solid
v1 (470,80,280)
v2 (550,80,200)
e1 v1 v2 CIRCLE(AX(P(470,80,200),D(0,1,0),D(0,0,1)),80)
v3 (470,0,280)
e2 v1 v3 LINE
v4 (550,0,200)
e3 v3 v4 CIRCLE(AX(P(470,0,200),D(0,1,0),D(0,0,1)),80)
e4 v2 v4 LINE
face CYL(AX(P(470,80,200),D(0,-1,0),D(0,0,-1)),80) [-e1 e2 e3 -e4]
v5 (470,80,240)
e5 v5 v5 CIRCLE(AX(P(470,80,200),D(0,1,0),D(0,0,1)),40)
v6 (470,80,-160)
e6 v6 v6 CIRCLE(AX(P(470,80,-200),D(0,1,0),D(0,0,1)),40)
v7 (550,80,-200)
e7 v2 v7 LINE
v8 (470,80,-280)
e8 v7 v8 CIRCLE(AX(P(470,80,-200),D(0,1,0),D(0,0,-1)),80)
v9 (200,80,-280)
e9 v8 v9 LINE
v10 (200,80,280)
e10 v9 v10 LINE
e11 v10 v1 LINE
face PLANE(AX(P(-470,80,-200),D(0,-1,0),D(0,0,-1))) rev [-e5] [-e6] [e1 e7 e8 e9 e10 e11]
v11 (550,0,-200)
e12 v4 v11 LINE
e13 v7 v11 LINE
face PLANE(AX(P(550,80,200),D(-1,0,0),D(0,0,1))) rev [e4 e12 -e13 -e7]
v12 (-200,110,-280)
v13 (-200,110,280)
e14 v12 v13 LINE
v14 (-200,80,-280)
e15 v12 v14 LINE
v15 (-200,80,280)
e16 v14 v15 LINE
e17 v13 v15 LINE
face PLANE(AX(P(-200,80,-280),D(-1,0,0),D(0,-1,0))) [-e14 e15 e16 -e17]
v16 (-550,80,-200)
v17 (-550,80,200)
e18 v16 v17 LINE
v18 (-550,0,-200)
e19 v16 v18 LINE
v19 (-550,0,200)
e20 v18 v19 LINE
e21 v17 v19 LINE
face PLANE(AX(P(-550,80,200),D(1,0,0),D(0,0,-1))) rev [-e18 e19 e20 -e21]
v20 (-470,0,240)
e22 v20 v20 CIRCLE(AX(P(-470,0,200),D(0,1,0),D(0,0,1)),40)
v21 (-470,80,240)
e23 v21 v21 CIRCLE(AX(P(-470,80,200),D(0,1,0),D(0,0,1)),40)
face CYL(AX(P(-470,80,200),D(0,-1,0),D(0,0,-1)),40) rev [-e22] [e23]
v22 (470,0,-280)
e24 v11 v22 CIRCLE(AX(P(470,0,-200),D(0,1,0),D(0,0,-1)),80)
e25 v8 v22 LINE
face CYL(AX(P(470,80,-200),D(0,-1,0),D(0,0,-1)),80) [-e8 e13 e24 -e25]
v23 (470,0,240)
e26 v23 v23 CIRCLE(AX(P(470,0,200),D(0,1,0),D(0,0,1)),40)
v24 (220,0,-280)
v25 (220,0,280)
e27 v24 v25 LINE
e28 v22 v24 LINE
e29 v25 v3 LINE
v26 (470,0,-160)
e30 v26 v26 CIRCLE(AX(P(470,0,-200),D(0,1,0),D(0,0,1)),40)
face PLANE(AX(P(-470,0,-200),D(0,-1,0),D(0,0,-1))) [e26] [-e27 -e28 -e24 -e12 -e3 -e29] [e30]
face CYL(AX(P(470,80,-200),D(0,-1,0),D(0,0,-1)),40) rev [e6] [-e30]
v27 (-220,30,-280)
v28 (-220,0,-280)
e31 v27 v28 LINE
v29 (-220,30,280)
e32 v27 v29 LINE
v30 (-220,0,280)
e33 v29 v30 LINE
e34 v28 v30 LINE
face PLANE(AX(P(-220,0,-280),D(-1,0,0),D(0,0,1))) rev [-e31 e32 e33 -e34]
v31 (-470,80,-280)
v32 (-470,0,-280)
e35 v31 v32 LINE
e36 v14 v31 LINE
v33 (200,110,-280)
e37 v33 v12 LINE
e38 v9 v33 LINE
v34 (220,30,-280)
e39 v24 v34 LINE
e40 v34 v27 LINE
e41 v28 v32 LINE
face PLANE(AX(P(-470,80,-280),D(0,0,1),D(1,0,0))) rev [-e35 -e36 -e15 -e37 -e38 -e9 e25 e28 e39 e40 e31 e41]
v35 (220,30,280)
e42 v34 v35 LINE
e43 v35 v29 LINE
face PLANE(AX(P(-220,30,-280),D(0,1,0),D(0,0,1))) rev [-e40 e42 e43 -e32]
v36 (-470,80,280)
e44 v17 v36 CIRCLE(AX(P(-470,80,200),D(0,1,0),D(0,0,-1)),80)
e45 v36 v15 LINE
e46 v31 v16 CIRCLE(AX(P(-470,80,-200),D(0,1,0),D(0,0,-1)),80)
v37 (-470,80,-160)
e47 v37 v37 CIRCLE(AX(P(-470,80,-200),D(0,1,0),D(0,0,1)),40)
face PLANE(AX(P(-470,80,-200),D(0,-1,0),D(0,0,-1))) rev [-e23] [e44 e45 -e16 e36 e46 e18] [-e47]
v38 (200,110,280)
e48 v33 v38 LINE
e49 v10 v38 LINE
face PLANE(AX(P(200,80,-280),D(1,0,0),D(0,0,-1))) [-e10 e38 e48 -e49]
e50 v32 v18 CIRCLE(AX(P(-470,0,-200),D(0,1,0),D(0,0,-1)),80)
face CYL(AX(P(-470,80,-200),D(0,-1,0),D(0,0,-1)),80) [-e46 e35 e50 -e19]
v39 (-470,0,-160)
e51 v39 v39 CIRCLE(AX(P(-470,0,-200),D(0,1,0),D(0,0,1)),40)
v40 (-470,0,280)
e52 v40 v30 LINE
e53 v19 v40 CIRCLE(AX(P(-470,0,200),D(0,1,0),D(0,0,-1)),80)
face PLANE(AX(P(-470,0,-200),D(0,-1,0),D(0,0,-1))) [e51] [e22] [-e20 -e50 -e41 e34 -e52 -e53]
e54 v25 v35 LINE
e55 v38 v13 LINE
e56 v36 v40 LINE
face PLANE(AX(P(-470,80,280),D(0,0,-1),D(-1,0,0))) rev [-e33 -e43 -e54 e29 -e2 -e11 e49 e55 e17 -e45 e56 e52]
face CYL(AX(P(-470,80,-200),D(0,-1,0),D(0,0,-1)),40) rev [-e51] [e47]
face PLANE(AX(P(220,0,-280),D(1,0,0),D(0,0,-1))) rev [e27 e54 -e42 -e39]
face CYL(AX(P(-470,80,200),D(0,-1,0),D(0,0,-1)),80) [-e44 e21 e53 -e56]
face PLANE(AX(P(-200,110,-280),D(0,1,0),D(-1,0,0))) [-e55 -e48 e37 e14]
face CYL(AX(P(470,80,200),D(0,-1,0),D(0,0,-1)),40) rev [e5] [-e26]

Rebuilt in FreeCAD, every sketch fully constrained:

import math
import FreeCAD as App
import Part
import Sketcher

V = App.Vector
Q = App.Units.Quantity

doc = App.newDocument("Part")
params = doc.addObject("Spreadsheet::Sheet", "Params")
for row, (alias, value) in enumerate([
    ("sketch1_diameter", "80 mm"),
    ("sketch1_radius", "80 mm"),
    ("sketch1_width", "940 mm"),
    ("sketch1_height", "400 mm"),
    ("pad1_length", "80 mm"),
    ("sketch2_width", "440 mm"),
    ("sketch2_height", "30 mm"),
    ("sketch3_width", "400 mm"),
    ("sketch3_height", "30 mm"),
    ("pad2_length", "560 mm"),
], start=1):
    params.set(f"A{row}", alias)
    params.set(f"B{row}", "=" + value)
    params.setAlias(f"B{row}", alias)

body = doc.addObject("PartDesign::Body", "Body")

# Sketch on XZ plane
sketch1 = body.newObject("Sketcher::SketchObject", "Sketch")
sketch1.AttachmentSupport = (doc.getObject("XZ_Plane"), [""])
sketch1.MapMode = "FlatFace"
sketch1.addGeometry([
    Part.LineSegment(V(-470, 280, 0), V(470, 280, 0)),  # 0
    Part.ArcOfCircle(Part.Circle(V(470, 200, 0), V(0, 0, 1), 80), math.radians(0), math.radians(90)),  # 1
    Part.LineSegment(V(550, 200, 0), V(550, -200, 0)),  # 2
    Part.ArcOfCircle(Part.Circle(V(470, -200, 0), V(0, 0, 1), 80), math.radians(-90), math.radians(0)),  # 3
    Part.LineSegment(V(470, -280, 0), V(-470, -280, 0)),  # 4
    Part.ArcOfCircle(Part.Circle(V(-470, -200, 0), V(0, 0, 1), 80), math.radians(180), math.radians(270)),  # 5
    Part.LineSegment(V(-550, -200, 0), V(-550, 200, 0)),  # 6
    Part.ArcOfCircle(Part.Circle(V(-470, 200, 0), V(0, 0, 1), 80), math.radians(90), math.radians(180)),  # 7
    Part.Circle(V(-470, 200, 0), V(0, 0, 1), 40),  # 8
    Part.Circle(V(470, 200, 0), V(0, 0, 1), 40),  # 9
    Part.Circle(V(-470, -200, 0), V(0, 0, 1), 40),  # 10
    Part.Circle(V(470, -200, 0), V(0, 0, 1), 40),  # 11
], False)
sketch1.addConstraint([
    Sketcher.Constraint("Tangent", 0, 2, 1, 2),
    Sketcher.Constraint("Tangent", 1, 1, 2, 1),
    Sketcher.Constraint("Tangent", 2, 2, 3, 2),
    Sketcher.Constraint("Tangent", 3, 1, 4, 1),
    Sketcher.Constraint("Tangent", 4, 2, 5, 2),
    Sketcher.Constraint("Tangent", 5, 1, 6, 1),
    Sketcher.Constraint("Tangent", 6, 2, 7, 2),
    Sketcher.Constraint("Tangent", 7, 1, 0, 1),
    Sketcher.Constraint("Horizontal", 0),
    Sketcher.Constraint("Vertical", 2),
    Sketcher.Constraint("Horizontal", 4),
    Sketcher.Constraint("Vertical", 6),
    Sketcher.Constraint("Coincident", 8, 3, 7, 3),
    Sketcher.Constraint("Coincident", 9, 3, 1, 3),
    Sketcher.Constraint("Coincident", 10, 3, 5, 3),
    Sketcher.Constraint("Coincident", 11, 3, 3, 3),
    Sketcher.Constraint("Equal", 1, 3),
    Sketcher.Constraint("Equal", 3, 5),
    Sketcher.Constraint("Equal", 5, 7),
    Sketcher.Constraint("Equal", 8, 9),
    Sketcher.Constraint("Equal", 9, 10),
    Sketcher.Constraint("Equal", 10, 11),
    Sketcher.Constraint("Symmetric", 1, 3, 5, 3, -1, 1),
    Sketcher.Constraint("Diameter", 8, Q("80 mm")),
    Sketcher.Constraint("Radius", 1, Q("80 mm")),
    Sketcher.Constraint("DistanceX", 0, 1, 0, 2, Q("940 mm")),
    Sketcher.Constraint("DistanceY", 2, 2, 2, 1, Q("400 mm")),
])
sketch1.setExpression("Constraints[23]", "Params.sketch1_diameter")
sketch1.setExpression("Constraints[24]", "Params.sketch1_radius")
sketch1.setExpression("Constraints[25]", "Params.sketch1_width")
sketch1.setExpression("Constraints[26]", "Params.sketch1_height")
pad1 = body.newObject("PartDesign::Pad", "Pad")
pad1.Profile = sketch1
pad1.setExpression("Length", "Params.pad1_length")
pad1.Reversed = True

# Sketch on XY plane
sketch2 = body.newObject("Sketcher::SketchObject", "Sketch001")
sketch2.AttachmentSupport = (doc.getObject("XY_Plane"), [""])
sketch2.MapMode = "FlatFace"
sketch2.AttachmentOffset = App.Placement(V(0, 0, 280), App.Rotation())
sketch2.addGeometry([
    Part.LineSegment(V(-220, 30, 0), V(-220, 0, 0)),
    Part.LineSegment(V(-220, 0, 0), V(220, 0, 0)),
    Part.LineSegment(V(220, 0, 0), V(220, 30, 0)),
    Part.LineSegment(V(220, 30, 0), V(-220, 30, 0)),
], False)
sketch2.addConstraint([
    Sketcher.Constraint("Coincident", 0, 2, 1, 1),
    Sketcher.Constraint("Coincident", 1, 2, 2, 1),
    Sketcher.Constraint("Coincident", 2, 2, 3, 1),
    Sketcher.Constraint("Coincident", 3, 2, 0, 1),
    Sketcher.Constraint("Vertical", 0),
    Sketcher.Constraint("Horizontal", 1),
    Sketcher.Constraint("Vertical", 2),
    Sketcher.Constraint("Horizontal", 3),
    Sketcher.Constraint("Symmetric", 0, 2, 1, 2, -1, 1),
    Sketcher.Constraint("DistanceX", 1, 1, 1, 2, Q("440 mm")),
    Sketcher.Constraint("DistanceY", 0, 2, 0, 1, Q("30 mm")),
])
sketch2.setExpression("Constraints[9]", "Params.sketch2_width")
sketch2.setExpression("Constraints[10]", "Params.sketch2_height")
pocket1 = body.newObject("PartDesign::Pocket", "Pocket")
pocket1.Profile = sketch2
pocket1.Type = "ThroughAll"

# Sketch on XY plane
sketch3 = body.newObject("Sketcher::SketchObject", "Sketch002")
sketch3.AttachmentSupport = (doc.getObject("XY_Plane"), [""])
sketch3.MapMode = "FlatFace"
sketch3.AttachmentOffset = App.Placement(V(0, 0, 280), App.Rotation())
sketch3.addGeometry([
    Part.LineSegment(V(-200, 110, 0), V(-200, 80, 0)),
    Part.LineSegment(V(-200, 80, 0), V(200, 80, 0)),
    Part.LineSegment(V(200, 80, 0), V(200, 110, 0)),
    Part.LineSegment(V(200, 110, 0), V(-200, 110, 0)),
], False)
sketch3.addConstraint([
    Sketcher.Constraint("Coincident", 0, 2, 1, 1),
    Sketcher.Constraint("Coincident", 1, 2, 2, 1),
    Sketcher.Constraint("Coincident", 2, 2, 3, 1),
    Sketcher.Constraint("Coincident", 3, 2, 0, 1),
    Sketcher.Constraint("Vertical", 0),
    Sketcher.Constraint("Horizontal", 1),
    Sketcher.Constraint("Vertical", 2),
    Sketcher.Constraint("Horizontal", 3),
    Sketcher.Constraint("DistanceX", 1, 1, 1, 2, Q("400 mm")),
    Sketcher.Constraint("DistanceY", 0, 2, 0, 1, Q("30 mm")),
    Sketcher.Constraint("DistanceX", 0, 2, -1, 1, Q("200 mm")),
    Sketcher.Constraint("DistanceY", -1, 1, 0, 2, Q("80 mm")),
])
sketch3.setExpression("Constraints[8]", "Params.sketch3_width")
sketch3.setExpression("Constraints[9]", "Params.sketch3_height")
pad2 = body.newObject("PartDesign::Pad", "Pad001")
pad2.Profile = sketch3
pad2.setExpression("Length", "Params.pad2_length")
pad2.Reversed = True

doc.recompute()
